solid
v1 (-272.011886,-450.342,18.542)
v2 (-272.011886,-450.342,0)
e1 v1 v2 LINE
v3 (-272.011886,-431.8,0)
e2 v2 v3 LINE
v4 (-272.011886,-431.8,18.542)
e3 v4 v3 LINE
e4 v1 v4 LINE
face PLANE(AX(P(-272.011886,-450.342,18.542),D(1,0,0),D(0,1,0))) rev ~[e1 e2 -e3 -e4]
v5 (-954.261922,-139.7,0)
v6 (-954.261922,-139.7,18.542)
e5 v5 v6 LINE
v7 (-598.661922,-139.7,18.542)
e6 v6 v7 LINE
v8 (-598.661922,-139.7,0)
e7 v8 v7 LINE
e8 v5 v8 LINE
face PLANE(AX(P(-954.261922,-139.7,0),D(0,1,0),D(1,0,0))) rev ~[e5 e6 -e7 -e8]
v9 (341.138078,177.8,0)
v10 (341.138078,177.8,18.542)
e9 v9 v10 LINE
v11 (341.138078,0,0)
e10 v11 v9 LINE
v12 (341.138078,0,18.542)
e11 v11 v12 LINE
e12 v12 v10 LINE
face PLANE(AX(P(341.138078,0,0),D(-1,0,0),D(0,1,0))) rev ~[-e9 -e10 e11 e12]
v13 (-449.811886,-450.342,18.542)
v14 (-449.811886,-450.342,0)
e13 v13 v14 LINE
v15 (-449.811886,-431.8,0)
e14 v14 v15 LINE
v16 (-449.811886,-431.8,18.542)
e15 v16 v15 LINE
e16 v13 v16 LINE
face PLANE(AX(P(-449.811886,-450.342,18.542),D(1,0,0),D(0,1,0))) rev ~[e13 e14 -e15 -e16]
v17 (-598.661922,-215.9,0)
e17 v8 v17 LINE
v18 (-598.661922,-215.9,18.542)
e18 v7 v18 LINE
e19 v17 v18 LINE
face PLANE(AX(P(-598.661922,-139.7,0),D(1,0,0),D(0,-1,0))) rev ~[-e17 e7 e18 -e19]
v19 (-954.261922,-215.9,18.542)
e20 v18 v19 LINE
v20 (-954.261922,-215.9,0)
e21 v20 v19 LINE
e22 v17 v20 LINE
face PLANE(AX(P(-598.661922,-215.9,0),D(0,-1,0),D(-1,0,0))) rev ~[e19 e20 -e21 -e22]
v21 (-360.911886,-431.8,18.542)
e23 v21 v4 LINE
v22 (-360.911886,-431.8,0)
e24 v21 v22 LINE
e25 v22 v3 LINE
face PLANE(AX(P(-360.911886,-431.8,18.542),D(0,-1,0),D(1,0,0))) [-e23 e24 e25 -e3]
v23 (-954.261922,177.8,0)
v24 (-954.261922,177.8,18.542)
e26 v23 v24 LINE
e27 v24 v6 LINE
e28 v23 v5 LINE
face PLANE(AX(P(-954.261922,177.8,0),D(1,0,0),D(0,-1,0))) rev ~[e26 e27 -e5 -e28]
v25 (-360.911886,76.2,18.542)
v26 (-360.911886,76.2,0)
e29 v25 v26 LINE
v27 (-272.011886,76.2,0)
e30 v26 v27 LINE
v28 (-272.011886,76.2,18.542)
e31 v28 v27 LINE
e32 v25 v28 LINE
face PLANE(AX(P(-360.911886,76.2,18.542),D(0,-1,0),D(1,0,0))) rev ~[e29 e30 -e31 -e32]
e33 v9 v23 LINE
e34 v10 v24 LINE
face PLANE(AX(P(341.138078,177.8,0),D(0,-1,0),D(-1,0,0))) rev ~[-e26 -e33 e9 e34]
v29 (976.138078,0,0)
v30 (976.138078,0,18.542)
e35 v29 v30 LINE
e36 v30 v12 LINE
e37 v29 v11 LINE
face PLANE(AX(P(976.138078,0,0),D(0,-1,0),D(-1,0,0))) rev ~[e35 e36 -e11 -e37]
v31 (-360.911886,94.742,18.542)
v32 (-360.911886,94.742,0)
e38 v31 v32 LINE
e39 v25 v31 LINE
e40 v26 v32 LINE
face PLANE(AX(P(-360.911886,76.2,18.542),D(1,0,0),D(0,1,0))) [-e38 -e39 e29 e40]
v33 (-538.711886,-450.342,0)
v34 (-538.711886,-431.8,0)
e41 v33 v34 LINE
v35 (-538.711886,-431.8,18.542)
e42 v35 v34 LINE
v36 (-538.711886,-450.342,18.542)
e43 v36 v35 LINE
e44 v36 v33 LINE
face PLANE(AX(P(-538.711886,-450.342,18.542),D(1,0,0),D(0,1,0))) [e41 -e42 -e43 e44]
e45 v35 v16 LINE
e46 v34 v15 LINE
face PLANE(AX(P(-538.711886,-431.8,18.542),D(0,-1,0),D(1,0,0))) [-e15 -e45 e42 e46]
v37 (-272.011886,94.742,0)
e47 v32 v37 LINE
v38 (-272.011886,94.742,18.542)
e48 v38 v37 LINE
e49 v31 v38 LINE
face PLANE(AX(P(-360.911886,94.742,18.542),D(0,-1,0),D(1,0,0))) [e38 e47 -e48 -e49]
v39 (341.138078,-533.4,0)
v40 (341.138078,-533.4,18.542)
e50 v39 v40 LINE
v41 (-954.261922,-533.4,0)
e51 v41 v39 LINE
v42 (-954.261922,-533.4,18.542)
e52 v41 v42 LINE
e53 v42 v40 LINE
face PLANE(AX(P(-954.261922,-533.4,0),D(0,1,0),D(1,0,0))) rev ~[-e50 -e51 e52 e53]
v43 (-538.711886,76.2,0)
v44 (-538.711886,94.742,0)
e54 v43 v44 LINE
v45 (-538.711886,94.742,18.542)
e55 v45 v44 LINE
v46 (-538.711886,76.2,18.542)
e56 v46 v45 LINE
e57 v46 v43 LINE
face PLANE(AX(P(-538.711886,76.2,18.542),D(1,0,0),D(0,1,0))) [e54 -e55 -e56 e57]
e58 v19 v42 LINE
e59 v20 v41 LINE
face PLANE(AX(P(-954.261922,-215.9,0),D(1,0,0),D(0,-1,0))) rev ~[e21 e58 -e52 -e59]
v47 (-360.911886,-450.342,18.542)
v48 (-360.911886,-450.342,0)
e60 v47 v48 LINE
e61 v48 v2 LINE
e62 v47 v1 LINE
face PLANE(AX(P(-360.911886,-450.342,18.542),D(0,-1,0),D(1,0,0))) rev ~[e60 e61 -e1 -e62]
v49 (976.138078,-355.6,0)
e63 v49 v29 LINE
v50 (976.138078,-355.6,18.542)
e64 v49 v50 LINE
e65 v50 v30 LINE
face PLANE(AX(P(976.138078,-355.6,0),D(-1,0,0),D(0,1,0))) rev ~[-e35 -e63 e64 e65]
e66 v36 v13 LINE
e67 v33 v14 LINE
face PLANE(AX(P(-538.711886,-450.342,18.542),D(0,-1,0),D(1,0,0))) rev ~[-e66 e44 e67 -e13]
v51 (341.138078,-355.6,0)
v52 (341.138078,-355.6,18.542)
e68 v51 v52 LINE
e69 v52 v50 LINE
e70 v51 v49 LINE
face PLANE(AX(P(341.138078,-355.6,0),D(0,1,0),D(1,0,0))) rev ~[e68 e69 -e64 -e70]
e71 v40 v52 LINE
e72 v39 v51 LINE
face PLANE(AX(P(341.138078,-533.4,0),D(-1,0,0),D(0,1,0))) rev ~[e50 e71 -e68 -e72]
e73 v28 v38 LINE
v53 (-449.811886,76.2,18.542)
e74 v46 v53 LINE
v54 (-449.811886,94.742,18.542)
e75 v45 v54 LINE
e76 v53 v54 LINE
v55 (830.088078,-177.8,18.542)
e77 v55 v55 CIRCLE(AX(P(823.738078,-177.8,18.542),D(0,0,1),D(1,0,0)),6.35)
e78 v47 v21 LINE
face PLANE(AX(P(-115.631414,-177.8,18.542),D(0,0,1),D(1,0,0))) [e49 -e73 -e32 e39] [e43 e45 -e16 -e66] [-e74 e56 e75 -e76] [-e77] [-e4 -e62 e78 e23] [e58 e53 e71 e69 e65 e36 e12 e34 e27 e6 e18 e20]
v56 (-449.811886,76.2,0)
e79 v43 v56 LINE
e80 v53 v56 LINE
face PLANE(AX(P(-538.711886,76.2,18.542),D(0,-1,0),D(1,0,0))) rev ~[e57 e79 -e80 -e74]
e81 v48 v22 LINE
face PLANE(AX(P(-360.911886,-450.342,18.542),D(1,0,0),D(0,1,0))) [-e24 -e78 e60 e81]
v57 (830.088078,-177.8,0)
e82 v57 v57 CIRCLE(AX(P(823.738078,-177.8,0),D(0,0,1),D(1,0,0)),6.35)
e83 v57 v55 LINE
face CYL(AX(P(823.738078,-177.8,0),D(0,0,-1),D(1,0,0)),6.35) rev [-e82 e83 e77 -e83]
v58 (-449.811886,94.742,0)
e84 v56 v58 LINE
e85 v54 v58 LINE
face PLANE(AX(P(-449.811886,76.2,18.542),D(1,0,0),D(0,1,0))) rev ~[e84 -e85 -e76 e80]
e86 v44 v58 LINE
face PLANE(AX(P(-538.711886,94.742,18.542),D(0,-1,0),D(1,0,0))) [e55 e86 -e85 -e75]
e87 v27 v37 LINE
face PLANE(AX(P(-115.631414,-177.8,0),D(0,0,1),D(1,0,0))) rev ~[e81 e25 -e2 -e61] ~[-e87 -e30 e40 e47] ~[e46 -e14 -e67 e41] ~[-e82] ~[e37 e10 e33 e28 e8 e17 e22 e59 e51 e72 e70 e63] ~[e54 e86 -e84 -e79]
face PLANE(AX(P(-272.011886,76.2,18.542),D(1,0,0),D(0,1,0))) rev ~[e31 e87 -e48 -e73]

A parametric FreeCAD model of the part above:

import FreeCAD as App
import Part
import Sketcher
from FreeCAD import Vector
Q = App.Units.Quantity

doc = App.newDocument("Part")
body = doc.addObject("PartDesign::Body", "Body")

# Sketch on XY plane
sketch1 = doc.addObject("Sketcher::SketchObject", "Sketch")
body.addObject(sketch1)
sketch1.AttachmentSupport = (doc.XY_Plane, [""])
sketch1.MapMode = "FlatFace"
sketch1.addGeometry(Part.LineSegment(Vector(341, 178, 0), Vector(-954, 178, 0)), False)
sketch1.addGeometry(Part.LineSegment(Vector(-954, 178, 0), Vector(-954, -140, 0)), False)
sketch1.addGeometry(Part.LineSegment(Vector(-954, -140, 0), Vector(-599, -140, 0)), False)
sketch1.addGeometry(Part.LineSegment(Vector(-599, -140, 0), Vector(-599, -216, 0)), False)
sketch1.addGeometry(Part.LineSegment(Vector(-599, -216, 0), Vector(-954, -216, 0)), False)
sketch1.addGeometry(Part.LineSegment(Vector(-954, -216, 0), Vector(-954, -533, 0)), False)
sketch1.addGeometry(Part.LineSegment(Vector(-954, -533, 0), Vector(341, -533, 0)), False)
sketch1.addGeometry(Part.LineSegment(Vector(341, -533, 0), Vector(341, -356, 0)), False)
sketch1.addGeometry(Part.LineSegment(Vector(341, -356, 0), Vector(976, -356, 0)), False)
sketch1.addGeometry(Part.LineSegment(Vector(976, -356, 0), Vector(976, 0, 0)), False)
sketch1.addGeometry(Part.LineSegment(Vector(976, 0, 0), Vector(341, 0, 0)), False)
sketch1.addGeometry(Part.LineSegment(Vector(341, 0, 0), Vector(341, 178, 0)), False)
sketch1.addGeometry(Part.Circle(Vector(824, -178, 0), Vector(0, 0, 1), 6), False)
sketch1.addConstraint(Sketcher.Constraint("Coincident", 0, 2, 1, 1))
sketch1.addConstraint(Sketcher.Constraint("Coincident", 1, 2, 2, 1))
sketch1.addConstraint(Sketcher.Constraint("Coincident", 2, 2, 3, 1))
sketch1.addConstraint(Sketcher.Constraint("Coincident", 3, 2, 4, 1))
sketch1.addConstraint(Sketcher.Constraint("Coincident", 4, 2, 5, 1))
sketch1.addConstraint(Sketcher.Constraint("Coincident", 5, 2, 6, 1))
sketch1.addConstraint(Sketcher.Constraint("Coincident", 6, 2, 7, 1))
sketch1.addConstraint(Sketcher.Constraint("Coincident", 7, 2, 8, 1))
sketch1.addConstraint(Sketcher.Constraint("Coincident", 8, 2, 9, 1))
sketch1.addConstraint(Sketcher.Constraint("Coincident", 9, 2, 10, 1))
sketch1.addConstraint(Sketcher.Constraint("Coincident", 10, 2, 11, 1))
sketch1.addConstraint(Sketcher.Constraint("Coincident", 11, 2, 0, 1))
sketch1.addConstraint(Sketcher.Constraint("Horizontal", 0))
sketch1.addConstraint(Sketcher.Constraint("Vertical", 1))
sketch1.addConstraint(Sketcher.Constraint("Horizontal", 2))
sketch1.addConstraint(Sketcher.Constraint("Vertical", 3))
sketch1.addConstraint(Sketcher.Constraint("Horizontal", 4))
sketch1.addConstraint(Sketcher.Constraint("Vertical", 5))
sketch1.addConstraint(Sketcher.Constraint("Horizontal", 6))
sketch1.addConstraint(Sketcher.Constraint("Vertical", 7))
sketch1.addConstraint(Sketcher.Constraint("Horizontal", 8))
sketch1.addConstraint(Sketcher.Constraint("Vertical", 9))
sketch1.addConstraint(Sketcher.Constraint("Horizontal", 10))
sketch1.addConstraint(Sketcher.Constraint("Vertical", 11))
sketch1.addConstraint(Sketcher.Constraint("PointOnObject", 9, 2, -1))
sketch1.addConstraint(Sketcher.Constraint("Vertical", 1, 2, 4, 2))
sketch1.addConstraint(Sketcher.Constraint("Vertical", 7, 2, 10, 2))
sketch1.addConstraint(Sketcher.Constraint("Equal", 1, 5))
sketch1.addConstraint(Sketcher.Constraint("Equal", 4, 9))
sketch1.addConstraint(Sketcher.Constraint("Equal", 7, 11))
sketch1.addConstraint(Sketcher.Constraint("Diameter", 12, Q("0.5 in")))
sketch1.addConstraint(Sketcher.Constraint("DistanceX", 0, 2, 0, 1, Q("51 in")))
sketch1.addConstraint(Sketcher.Constraint("DistanceX", 2, 1, 2, 2, Q("14 in")))
sketch1.addConstraint(Sketcher.Constraint("DistanceX", 8, 1, 8, 2, Q("25 in")))
sketch1.addConstraint(Sketcher.Constraint("DistanceY", 3, 2, 3, 1, Q("3 in")))
sketch1.addConstraint(Sketcher.Constraint("DistanceY", 7, 1, 7, 2, Q("7 in")))
sketch1.addConstraint(Sketcher.Constraint("DistanceY", 12, 3, -1, 1, Q("7 in")))
sketch1.addConstraint(Sketcher.Constraint("DistanceX", 0, 2, 12, 3, Q("70 in")))
sketch1.addConstraint(Sketcher.Constraint("DistanceX", -1, 1, 12, 3, Q("823.738078 mm")))
pad1 = doc.addObject("PartDesign::Pad", "Pad")
body.addObject(pad1)
pad1.Profile = sketch1
pad1.Length = Q("0.73 in")

# Sketch on XY plane
sketch2 = doc.addObject("Sketcher::SketchObject", "Sketch001")
body.addObject(sketch2)
sketch2.AttachmentSupport = (doc.XY_Plane, [""])
sketch2.MapMode = "FlatFace"
sketch2.AttachmentOffset = App.Placement(Vector(0, 0, 0.73 * 25.4), App.Rotation())
sketch2.addGeometry(Part.LineSegment(Vector(-539, -432, 0), Vector(-539, -450, 0)), False)
sketch2.addGeometry(Part.LineSegment(Vector(-539, -450, 0), Vector(-450, -450, 0)), False)
sketch2.addGeometry(Part.LineSegment(Vector(-450, -450, 0), Vector(-450, -432, 0)), False)
sketch2.addGeometry(Part.LineSegment(Vector(-450, -432, 0), Vector(-539, -432, 0)), False)
sketch2.addGeometry(Part.LineSegment(Vector(-539, 95, 0), Vector(-539, 76, 0)), False)
sketch2.addGeometry(Part.LineSegment(Vector(-539, 76, 0), Vector(-450, 76, 0)), False)
sketch2.addGeometry(Part.LineSegment(Vector(-450, 76, 0), Vector(-450, 95, 0)), False)
sketch2.addGeometry(Part.LineSegment(Vector(-450, 95, 0), Vector(-539, 95, 0)), False)
sketch2.addGeometry(Part.LineSegment(Vector(-361, -432, 0), Vector(-361, -450, 0)), False)
sketch2.addGeometry(Part.LineSegment(Vector(-361, -450, 0), Vector(-272, -450, 0)), False)
sketch2.addGeometry(Part.LineSegment(Vector(-272, -450, 0), Vector(-272, -432, 0)), False)
sketch2.addGeometry(Part.LineSegment(Vector(-272, -432, 0), Vector(-361, -432, 0)), False)
sketch2.addGeometry(Part.LineSegment(Vector(-361, 95, 0), Vector(-361, 76, 0)), False)
sketch2.addGeometry(Part.LineSegment(Vector(-361, 76, 0), Vector(-272, 76, 0)), False)
sketch2.addGeometry(Part.LineSegment(Vector(-272, 76, 0), Vector(-272, 95, 0)), False)
sketch2.addGeometry(Part.LineSegment(Vector(-272, 95, 0), Vector(-361, 95, 0)), False)
sketch2.addConstraint(Sketcher.Constraint("Coincident", 0, 2, 1, 1))
sketch2.addConstraint(Sketcher.Constraint("Coincident", 1, 2, 2, 1))
sketch2.addConstraint(Sketcher.Constraint("Coincident", 2, 2, 3, 1))
sketch2.addConstraint(Sketcher.Constraint("Coincident", 3, 2, 0, 1))
sketch2.addConstraint(Sketcher.Constraint("Coincident", 4, 2, 5, 1))
sketch2.addConstraint(Sketcher.Constraint("Coincident", 5, 2, 6, 1))
sketch2.addConstraint(Sketcher.Constraint("Coincident", 6, 2, 7, 1))
sketch2.addConstraint(Sketcher.Constraint("Coincident", 7, 2, 4, 1))
sketch2.addConstraint(Sketcher.Constraint("Coincident", 8, 2, 9, 1))
sketch2.addConstraint(Sketcher.Constraint("Coincident", 9, 2, 10, 1))
sketch2.addConstraint(Sketcher.Constraint("Coincident", 10, 2, 11, 1))
sketch2.addConstraint(Sketcher.Constraint("Coincident", 11, 2, 8, 1))
sketch2.addConstraint(Sketcher.Constraint("Coincident", 12, 2, 13, 1))
sketch2.addConstraint(Sketcher.Constraint("Coincident", 13, 2, 14, 1))
sketch2.addConstraint(Sketcher.Constraint("Coincident", 14, 2, 15, 1))
sketch2.addConstraint(Sketcher.Constraint("Coincident", 15, 2, 12, 1))
sketch2.addConstraint(Sketcher.Constraint("Vertical", 0))
sketch2.addConstraint(Sketcher.Constraint("Horizontal", 1))
sketch2.addConstraint(Sketcher.Constraint("Vertical", 2))
sketch2.addConstraint(Sketcher.Constraint("Horizontal", 3))
sketch2.addConstraint(Sketcher.Constraint("Vertical", 4))
sketch2.addConstraint(Sketcher.Constraint("Horizontal", 5))
sketch2.addConstraint(Sketcher.Constraint("Vertical", 6))
sketch2.addConstraint(Sketcher.Constraint("Horizontal", 7))
sketch2.addConstraint(Sketcher.Constraint("Vertical", 8))
sketch2.addConstraint(Sketcher.Constraint("Horizontal", 9))
sketch2.addConstraint(Sketcher.Constraint("Vertical", 10))
sketch2.addConstraint(Sketcher.Constraint("Horizontal", 11))
sketch2.addConstraint(Sketcher.Constraint("Vertical", 12))
sketch2.addConstraint(Sketcher.Constraint("Horizontal", 13))
sketch2.addConstraint(Sketcher.Constraint("Vertical", 14))
sketch2.addConstraint(Sketcher.Constraint("Horizontal", 15))
sketch2.addConstraint(Sketcher.Constraint("Horizontal", 1, 2, 8, 2))
sketch2.addConstraint(Sketcher.Constraint("Horizontal", 3, 2, 10, 2))
sketch2.addConstraint(Sketcher.Constraint("Horizontal", 5, 2, 12, 2))
sketch2.addConstraint(Sketcher.Constraint("Horizontal", 7, 2, 14, 2))
sketch2.addConstraint(Sketcher.Constraint("Vertical", 3, 2, 4, 2))
sketch2.addConstraint(Sketcher.Constraint("Vertical", 2, 2, 5, 2))
sketch2.addConstraint(Sketcher.Constraint("Vertical", 11, 2, 12, 2))
sketch2.addConstraint(Sketcher.Constraint("Vertical", 10, 2, 13, 2))
sketch2.addConstraint(Sketcher.Constraint("Equal", 7, 9))
sketch2.addConstraint(Sketcher.Constraint("Equal", 2, 4))
sketch2.addConstraint(Sketcher.Constraint("DistanceX", 1, 1, 1, 2, Q("3.5 in")))
sketch2.addConstraint(Sketcher.Constraint("DistanceY", 2, 2, -1, 1, Q("17 in")))
sketch2.addConstraint(Sketcher.Constraint("DistanceY", -1, 1, 4, 2, Q("3 in")))
sketch2.addConstraint(Sketcher.Constraint("DistanceX", 0, 2, 8, 2, Q("7 in")))
sketch2.addConstraint(Sketcher.Constraint("DistanceY", 0, 2, 0, 1, Q("0.73 in")))
sketch2.addConstraint(Sketcher.Constraint("DistanceX", 0, 2, -1, 1, Q("538.711886 mm")))
pocket1 = doc.addObject("PartDesign::Pocket", "Pocket")
body.addObject(pocket1)
pocket1.Profile = sketch2
pocket1.Length = Q("1 in")

doc.recompute()
